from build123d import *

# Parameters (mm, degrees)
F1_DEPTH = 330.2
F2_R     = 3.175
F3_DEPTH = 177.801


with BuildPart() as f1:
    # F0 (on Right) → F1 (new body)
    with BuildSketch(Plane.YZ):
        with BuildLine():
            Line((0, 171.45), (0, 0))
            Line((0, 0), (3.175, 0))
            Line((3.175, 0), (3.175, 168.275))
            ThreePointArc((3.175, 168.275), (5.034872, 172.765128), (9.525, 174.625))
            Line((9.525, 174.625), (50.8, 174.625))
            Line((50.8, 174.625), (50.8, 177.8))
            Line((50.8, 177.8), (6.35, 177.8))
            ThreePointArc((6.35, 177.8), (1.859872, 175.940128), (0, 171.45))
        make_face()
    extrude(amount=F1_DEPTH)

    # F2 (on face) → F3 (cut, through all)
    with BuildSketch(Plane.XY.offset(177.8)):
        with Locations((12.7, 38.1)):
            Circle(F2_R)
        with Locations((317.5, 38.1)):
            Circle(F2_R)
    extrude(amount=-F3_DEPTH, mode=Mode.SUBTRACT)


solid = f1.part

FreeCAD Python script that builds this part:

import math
import FreeCAD as App
import Part
import Sketcher
from FreeCAD import Vector
Q = App.Units.Quantity

doc = App.newDocument("Part")
params = doc.addObject("Spreadsheet::Sheet", "Params")
for row, (alias, value) in enumerate([
    ("sketch1_radius", "0.25 in"),
    ("sketch1_width", "0.125 in"),
    ("pad1_length", "13 in"),
    ("sketch2_diameter", "0.25 in"),
], start=1):
    params.set(f"A{row}", alias)
    params.set(f"B{row}", "=" + value)
    params.setAlias(f"B{row}", alias)

body = doc.addObject("PartDesign::Body", "Body")

# Sketch on YZ plane
sketch1 = doc.addObject("Sketcher::SketchObject", "Sketch")
body.addObject(sketch1)
sketch1.AttachmentSupport = (doc.YZ_Plane, [""])
sketch1.MapMode = "FlatFace"
sketch1.addGeometry([
    Part.LineSegment(Vector(0, 171.45, 0), Vector(0, 0, 0)),  # 0
    Part.LineSegment(Vector(0, 0, 0), Vector(3.175, 0, 0)),  # 1
    Part.LineSegment(Vector(3.175, 0, 0), Vector(3.175, 168.275, 0)),  # 2
    Part.ArcOfCircle(Part.Circle(Vector(9.525, 168.275, 0), Vector(0, 0, 1), 6.35), math.radians(90.000002), math.radians(179.999998)),  # 3
    Part.LineSegment(Vector(9.525, 174.625, 0), Vector(50.8, 174.625, 0)),  # 4
    Part.LineSegment(Vector(50.8, 174.625, 0), Vector(50.8, 177.8, 0)),  # 5
    Part.LineSegment(Vector(50.8, 177.8, 0), Vector(6.35, 177.8, 0)),  # 6
    Part.ArcOfCircle(Part.Circle(Vector(6.35, 171.45, 0), Vector(0, 0, 1), 6.35), math.radians(90.000002), math.radians(179.999998)),  # 7
], False)
sketch1.addConstraint([
    Sketcher.Constraint("Coincident", 0, 2, 1, 1),
    Sketcher.Constraint("Coincident", 1, 2, 2, 1),
    Sketcher.Constraint("Tangent", 2, 2, 3, 2),
    Sketcher.Constraint("Tangent", 3, 1, 4, 1),
    Sketcher.Constraint("Coincident", 4, 2, 5, 1),
    Sketcher.Constraint("Coincident", 5, 2, 6, 1),
    Sketcher.Constraint("Tangent", 6, 2, 7, 1),
    Sketcher.Constraint("Tangent", 7, 2, 0, 1),
    Sketcher.Constraint("Vertical", 0),
    Sketcher.Constraint("Horizontal", 1),
    Sketcher.Constraint("Vertical", 2),
    Sketcher.Constraint("Horizontal", 4),
    Sketcher.Constraint("Vertical", 5),
    Sketcher.Constraint("Horizontal", 6),
    Sketcher.Constraint("Coincident", 0, 2, -1, 1),
    Sketcher.Constraint("Equal", 3, 7),
    Sketcher.Constraint("Equal", 1, 5),
    Sketcher.Constraint("Radius", 3, Q("0.25 in")),
    Sketcher.Constraint("DistanceX", -1, 1, 4, 2, Q("2 in")),
    Sketcher.Constraint("DistanceY", -1, 1, 5, 2, Q("7 in")),
    Sketcher.Constraint("DistanceX", 1, 1, 1, 2, Q("0.125 in")),
])
sketch1.setExpression("Constraints[17]", "Params.sketch1_radius")
sketch1.setExpression("Constraints[20]", "Params.sketch1_width")
pad1 = doc.addObject("PartDesign::Pad", "Pad")
body.addObject(pad1)
pad1.Profile = sketch1
pad1.setExpression("Length", "Params.pad1_length")

# Sketch on XY plane
sketch2 = doc.addObject("Sketcher::SketchObject", "Sketch001")
body.addObject(sketch2)
sketch2.AttachmentSupport = (doc.XY_Plane, [""])
sketch2.MapMode = "FlatFace"
sketch2.AttachmentOffset = App.Placement(Vector(0, 0, 7 * 25.4), App.Rotation())
sketch2.addGeometry([
    Part.Circle(Vector(12.7, 38.1, 0), Vector(0, 0, 1), 3.175),
    Part.Circle(Vector(317.5, 38.1, 0), Vector(0, 0, 1), 3.175),
], False)
sketch2.addConstraint([
    Sketcher.Constraint("Equal", 0, 1),
    Sketcher.Constraint("Horizontal", 0, 3, 1, 3),
    Sketcher.Constraint("Diameter", 0, Q("0.25 in")),
    Sketcher.Constraint("DistanceX", 0, 3, 1, 3, Q("12 in")),
    Sketcher.Constraint("DistanceX", -1, 1, 0, 3, Q("0.5 in")),
    Sketcher.Constraint("DistanceY", -1, 1, 0, 3, Q("1.5 in")),
])
sketch2.setExpression("Constraints[2]", "Params.sketch2_diameter")
pocket1 = doc.addObject("PartDesign::Pocket", "Pocket")
body.addObject(pocket1)
pocket1.Profile = sketch2
pocket1.Type = "ThroughAll"

doc.recompute()
